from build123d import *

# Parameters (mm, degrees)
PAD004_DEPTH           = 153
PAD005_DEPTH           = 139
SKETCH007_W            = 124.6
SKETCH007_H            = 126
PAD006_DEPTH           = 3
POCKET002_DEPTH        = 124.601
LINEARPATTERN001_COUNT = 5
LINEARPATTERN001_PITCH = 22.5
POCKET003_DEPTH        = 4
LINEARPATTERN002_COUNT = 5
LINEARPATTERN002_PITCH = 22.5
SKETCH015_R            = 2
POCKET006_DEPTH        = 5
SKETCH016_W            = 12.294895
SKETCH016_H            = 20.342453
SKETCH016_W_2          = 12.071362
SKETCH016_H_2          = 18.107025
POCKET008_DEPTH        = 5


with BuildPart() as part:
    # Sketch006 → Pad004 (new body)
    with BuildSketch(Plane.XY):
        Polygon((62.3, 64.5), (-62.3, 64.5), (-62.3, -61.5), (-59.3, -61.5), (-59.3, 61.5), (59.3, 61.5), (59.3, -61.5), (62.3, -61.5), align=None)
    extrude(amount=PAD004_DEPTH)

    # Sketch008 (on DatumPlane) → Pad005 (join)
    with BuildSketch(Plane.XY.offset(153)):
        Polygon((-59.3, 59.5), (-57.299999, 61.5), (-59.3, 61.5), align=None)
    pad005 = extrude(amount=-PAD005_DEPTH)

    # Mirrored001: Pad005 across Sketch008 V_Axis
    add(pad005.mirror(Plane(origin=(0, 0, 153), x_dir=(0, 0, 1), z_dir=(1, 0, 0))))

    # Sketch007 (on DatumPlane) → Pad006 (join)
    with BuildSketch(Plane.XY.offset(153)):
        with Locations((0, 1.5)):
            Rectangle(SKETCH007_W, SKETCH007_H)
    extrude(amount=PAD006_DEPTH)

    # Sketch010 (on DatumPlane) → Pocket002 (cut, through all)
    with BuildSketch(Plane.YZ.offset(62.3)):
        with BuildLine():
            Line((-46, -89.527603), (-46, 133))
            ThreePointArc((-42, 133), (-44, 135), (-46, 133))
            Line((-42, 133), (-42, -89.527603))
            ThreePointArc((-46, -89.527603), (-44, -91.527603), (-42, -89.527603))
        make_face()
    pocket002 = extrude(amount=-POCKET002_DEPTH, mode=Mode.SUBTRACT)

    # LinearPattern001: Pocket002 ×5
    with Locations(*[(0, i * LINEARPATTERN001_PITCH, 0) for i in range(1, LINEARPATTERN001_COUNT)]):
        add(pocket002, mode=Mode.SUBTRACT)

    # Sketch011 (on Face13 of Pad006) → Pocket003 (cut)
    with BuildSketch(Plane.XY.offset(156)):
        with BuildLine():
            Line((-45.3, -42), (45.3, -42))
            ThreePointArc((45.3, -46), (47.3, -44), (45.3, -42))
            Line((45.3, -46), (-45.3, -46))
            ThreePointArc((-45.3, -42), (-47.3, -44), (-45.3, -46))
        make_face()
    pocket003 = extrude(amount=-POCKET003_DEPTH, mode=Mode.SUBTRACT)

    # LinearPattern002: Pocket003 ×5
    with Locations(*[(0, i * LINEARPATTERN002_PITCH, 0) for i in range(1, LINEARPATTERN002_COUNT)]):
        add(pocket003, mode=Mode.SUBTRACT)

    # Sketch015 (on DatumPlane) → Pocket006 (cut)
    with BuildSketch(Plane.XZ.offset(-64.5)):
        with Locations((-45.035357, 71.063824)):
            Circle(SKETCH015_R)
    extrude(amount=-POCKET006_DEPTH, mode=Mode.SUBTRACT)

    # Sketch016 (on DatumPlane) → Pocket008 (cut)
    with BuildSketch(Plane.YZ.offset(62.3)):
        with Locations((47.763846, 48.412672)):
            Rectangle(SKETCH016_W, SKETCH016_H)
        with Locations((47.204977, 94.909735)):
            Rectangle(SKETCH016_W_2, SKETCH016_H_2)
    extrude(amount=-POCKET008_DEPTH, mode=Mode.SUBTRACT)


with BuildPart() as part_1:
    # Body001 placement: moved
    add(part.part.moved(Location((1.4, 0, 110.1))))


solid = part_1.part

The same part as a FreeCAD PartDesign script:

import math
import FreeCAD as App
import Part
import Sketcher
from FreeCAD import Vector
Q = App.Units.Quantity

doc = App.newDocument("Part")
body = doc.addObject("PartDesign::Body", "Body")

# Sketch on XY plane
sketch1 = body.newObject("Sketcher::SketchObject", "Sketch")
sketch1.AttachmentSupport = (doc.getObject("XY_Plane"), [""])
sketch1.MapMode = "FlatFace"
sketch1.addGeometry([
    Part.LineSegment(Vector(62.3, 64.5, 0), Vector(-62.3, 64.5, 0)),  # 0
    Part.LineSegment(Vector(-62.3, 64.5, 0), Vector(-62.3, -61.5, 0)),  # 1
    Part.LineSegment(Vector(-62.3, -61.5, 0), Vector(-59.3, -61.5, 0)),  # 2
    Part.LineSegment(Vector(-59.3, -61.5, 0), Vector(-59.3, 61.5, 0)),  # 3
    Part.LineSegment(Vector(-59.3, 61.5, 0), Vector(59.3, 61.5, 0)),  # 4
    Part.LineSegment(Vector(59.3, 61.5, 0), Vector(59.3, -61.5, 0)),  # 5
    Part.LineSegment(Vector(59.3, -61.5, 0), Vector(62.3, -61.5, 0)),  # 6
    Part.LineSegment(Vector(62.3, -61.5, 0), Vector(62.3, 64.5, 0)),  # 7
], False)
sketch1.addConstraint([
    Sketcher.Constraint("Coincident", 0, 2, 1, 1),
    Sketcher.Constraint("Coincident", 1, 2, 2, 1),
    Sketcher.Constraint("Coincident", 2, 2, 3, 1),
    Sketcher.Constraint("Coincident", 3, 2, 4, 1),
    Sketcher.Constraint("Coincident", 4, 2, 5, 1),
    Sketcher.Constraint("Coincident", 5, 2, 6, 1),
    Sketcher.Constraint("Coincident", 6, 2, 7, 1),
    Sketcher.Constraint("Coincident", 7, 2, 0, 1),
    Sketcher.Constraint("Horizontal", 0),
    Sketcher.Constraint("Vertical", 1),
    Sketcher.Constraint("Horizontal", 2),
    Sketcher.Constraint("Vertical", 3),
    Sketcher.Constraint("Horizontal", 4),
    Sketcher.Constraint("Vertical", 5),
    Sketcher.Constraint("Horizontal", 6),
    Sketcher.Constraint("Vertical", 7),
    Sketcher.Constraint("Symmetric", 2, 2, 4, 2, -1, 1),
    Sketcher.Constraint("Symmetric", 1, 2, 6, 2, -2),
    Sketcher.Constraint("DistanceX", 2, 1, 2, 2, Q("3 mm")),
    Sketcher.Constraint("DistanceY", 1, 2, 1, 1, Q("126 mm")),
    Sketcher.Constraint("DistanceY", 3, 1, 3, 2, Q("123 mm")),
    Sketcher.Constraint("DistanceX", 0, 2, 0, 1, Q("124.6 mm")),
])
pad1 = body.newObject("PartDesign::Pad", "Pad")
pad1.Profile = sketch1
pad1.Length = 153

# Sketch on XY plane
sketch2 = body.newObject("Sketcher::SketchObject", "Sketch001")
sketch2.AttachmentSupport = (doc.getObject("XY_Plane"), [""])
sketch2.MapMode = "FlatFace"
sketch2.AttachmentOffset = App.Placement(Vector(0, 0, 153), App.Rotation())
sketch2.addGeometry([
    Part.LineSegment(Vector(-59.3, 59.5, 0), Vector(-57.3, 61.5, 0)),
    Part.LineSegment(Vector(-57.3, 61.5, 0), Vector(-59.3, 61.5, 0)),
    Part.LineSegment(Vector(-59.3, 61.5, 0), Vector(-59.3, 59.5, 0)),
], False)
sketch2.addConstraint([
    Sketcher.Constraint("Coincident", 0, 2, 1, 1),
    Sketcher.Constraint("Coincident", 1, 2, 2, 1),
    Sketcher.Constraint("Coincident", 2, 2, 0, 1),
    Sketcher.Constraint("Horizontal", 1),
    Sketcher.Constraint("Vertical", 2),
    Sketcher.Constraint("Equal", 1, 2),
    Sketcher.Constraint("DistanceX", 1, 2, 1, 1, Q("2.000001 mm")),
    Sketcher.Constraint("DistanceX", 0, 2, -1, 1, Q("57.299999 mm")),
    Sketcher.Constraint("DistanceY", -1, 1, 0, 2, Q("61.5 mm")),
])
pad2 = body.newObject("PartDesign::Pad", "Pad001")
pad2.Profile = sketch2
pad2.Length = 139
pad2.Reversed = True
doc.recompute()

mirrored = body.newObject("PartDesign::Mirrored", "Mirrored")
mirrored.Originals = [pad2]
mirrored.MirrorPlane = (doc.getObject("YZ_Plane"), [""])
body.Tip = mirrored

# Sketch on XY plane
sketch3 = body.newObject("Sketcher::SketchObject", "Sketch002")
sketch3.AttachmentSupport = (doc.getObject("XY_Plane"), [""])
sketch3.MapMode = "FlatFace"
sketch3.AttachmentOffset = App.Placement(Vector(0, 0, 153), App.Rotation())
sketch3.addGeometry([
    Part.LineSegment(Vector(-62, 64, 0), Vector(-62, -62, 0)),
    Part.LineSegment(Vector(-62, -62, 0), Vector(62, -62, 0)),
    Part.LineSegment(Vector(62, -62, 0), Vector(62, 64, 0)),
    Part.LineSegment(Vector(62, 64, 0), Vector(-62, 64, 0)),
], False)
sketch3.addConstraint([
    Sketcher.Constraint("Coincident", 0, 2, 1, 1),
    Sketcher.Constraint("Coincident", 1, 2, 2, 1),
    Sketcher.Constraint("Coincident", 2, 2, 3, 1),
    Sketcher.Constraint("Coincident", 3, 2, 0, 1),
    Sketcher.Constraint("Vertical", 0),
    Sketcher.Constraint("Horizontal", 1),
    Sketcher.Constraint("Vertical", 2),
    Sketcher.Constraint("Horizontal", 3),
    Sketcher.Constraint("DistanceY", 0, 2, 0, 1, Q("126 mm")),
    Sketcher.Constraint("DistanceX", 1, 1, 1, 2, Q("124.6 mm")),
    Sketcher.Constraint("DistanceX", 0, 2, -1, 1, Q("62.3 mm")),
    Sketcher.Constraint("DistanceY", 0, 2, -1, 1, Q("61.5 mm")),
])
pad3 = body.newObject("PartDesign::Pad", "Pad002")
pad3.Profile = sketch3
pad3.Length = 3

# Sketch on YZ plane
sketch4 = body.newObject("Sketcher::SketchObject", "Sketch003")
sketch4.AttachmentSupport = (doc.getObject("YZ_Plane"), [""])
sketch4.MapMode = "FlatFace"
sketch4.AttachmentOffset = App.Placement(Vector(0, 0, 62.3), App.Rotation())
sketch4.addGeometry([
    Part.LineSegment(Vector(-46, 133, 0), Vector(-46, -89.5, 0)),
    Part.ArcOfCircle(Part.Circle(Vector(-44, -89.5, 0), Vector(0, 0, 1), 2), math.radians(180), math.radians(360)),
    Part.LineSegment(Vector(-42, -89.5, 0), Vector(-42, 133, 0)),
    Part.ArcOfCircle(Part.Circle(Vector(-44, 133, 0), Vector(0, 0, 1), 2), math.radians(0), math.radians(180)),
], False)
sketch4.addConstraint([
    Sketcher.Constraint("Tangent", 0, 2, 1, 1),
    Sketcher.Constraint("Tangent", 1, 2, 2, 1),
    Sketcher.Constraint("Tangent", 2, 2, 3, 1),
    Sketcher.Constraint("Tangent", 3, 2, 0, 1),
    Sketcher.Constraint("Vertical", 0),
    Sketcher.Constraint("Vertical", 2),
    Sketcher.Constraint("Radius", 1, Q("2 mm")),
    Sketcher.Constraint("DistanceX", 1, 3, -1, 1, Q("44 mm")),
    Sketcher.Constraint("DistanceY", -1, 1, 3, 3, Q("133 mm")),
    Sketcher.Constraint("DistanceY", 0, 2, 0, 1, Q("222.527603 mm")),
])
pocket1 = body.newObject("PartDesign::Pocket", "Pocket")
pocket1.Profile = sketch4
pocket1.Type = "ThroughAll"
doc.recompute()

linearpattern = body.newObject("PartDesign::LinearPattern", "LinearPattern")
linearpattern.Originals = [pocket1]
linearpattern.Direction = (doc.getObject("Y_Axis"), [""])
linearpattern.Mode = "offset"
linearpattern.Offset = 22.5
linearpattern.Occurrences = 5
body.Tip = linearpattern

# Sketch on XY plane
sketch5 = body.newObject("Sketcher::SketchObject", "Sketch004")
sketch5.AttachmentSupport = (doc.getObject("XY_Plane"), [""])
sketch5.MapMode = "FlatFace"
sketch5.AttachmentOffset = App.Placement(Vector(0, 0, 156), App.Rotation())
sketch5.addGeometry([
    Part.LineSegment(Vector(45.3, -42, 0), Vector(-45.3, -42, 0)),
    Part.ArcOfCircle(Part.Circle(Vector(-45.3, -44, 0), Vector(0, 0, 1), 2), math.radians(90), math.radians(270)),
    Part.LineSegment(Vector(-45.3, -46, 0), Vector(45.3, -46, 0)),
    Part.ArcOfCircle(Part.Circle(Vector(45.3, -44, 0), Vector(0, 0, 1), 2), math.radians(-90), math.radians(90)),
], False)
sketch5.addConstraint([
    Sketcher.Constraint("Tangent", 0, 2, 1, 1),
    Sketcher.Constraint("Tangent", 1, 2, 2, 1),
    Sketcher.Constraint("Tangent", 2, 2, 3, 1),
    Sketcher.Constraint("Tangent", 3, 2, 0, 1),
    Sketcher.Constraint("Horizontal", 0),
    Sketcher.Constraint("Horizontal", 2),
    Sketcher.Constraint("Radius", 1, Q("2 mm")),
    Sketcher.Constraint("DistanceX", 0, 2, 0, 1, Q("90.6 mm")),
    Sketcher.Constraint("DistanceY", 1, 3, -1, 1, Q("44 mm")),
    Sketcher.Constraint("DistanceX", 1, 3, -1, 1, Q("45.3 mm")),
])
pocket2 = body.newObject("PartDesign::Pocket", "Pocket001")
pocket2.Profile = sketch5
pocket2.Length = 4
doc.recompute()

linearpattern2 = body.newObject("PartDesign::LinearPattern", "LinearPattern001")
linearpattern2.Originals = [pocket2]
linearpattern2.Direction = (doc.getObject("Y_Axis"), [""])
linearpattern2.Mode = "offset"
linearpattern2.Offset = 22.5
linearpattern2.Occurrences = 5
body.Tip = linearpattern2

# Sketch on XZ plane
sketch6 = body.newObject("Sketcher::SketchObject", "Sketch005")
sketch6.AttachmentSupport = (doc.getObject("XZ_Plane"), [""])
sketch6.MapMode = "FlatFace"
sketch6.AttachmentOffset = App.Placement(Vector(0, 0, -64.5), App.Rotation())
sketch6.addGeometry(Part.Circle(Vector(-45, 71.1, 0), Vector(0, 0, 1), 2), False)
sketch6.addConstraint([
    Sketcher.Constraint("Diameter", 0, Q("4 mm")),
    Sketcher.Constraint("DistanceX", 0, 3, -1, 1, Q("45.035357 mm")),
    Sketcher.Constraint("DistanceY", -1, 1, 0, 3, Q("71.063824 mm")),
])
pocket3 = body.newObject("PartDesign::Pocket", "Pocket002")
pocket3.Profile = sketch6
pocket3.Length = 5

# Sketch on YZ plane
sketch7 = body.newObject("Sketcher::SketchObject", "Sketch006")
sketch7.AttachmentSupport = (doc.getObject("YZ_Plane"), [""])
sketch7.MapMode = "FlatFace"
sketch7.AttachmentOffset = App.Placement(Vector(0, 0, 62.3), App.Rotation())
sketch7.addGeometry([
    Part.LineSegment(Vector(42, 59, 0), Vector(42, 38, 0)),  # 0
    Part.LineSegment(Vector(42, 38, 0), Vector(54, 38, 0)),  # 1
    Part.LineSegment(Vector(54, 38, 0), Vector(54, 59, 0)),  # 2
    Part.LineSegment(Vector(54, 59, 0), Vector(42, 59, 0)),  # 3
    Part.LineSegment(Vector(41, 104, 0), Vector(41, 86, 0)),  # 4
    Part.LineSegment(Vector(41, 86, 0), Vector(53, 86, 0)),  # 5
    Part.LineSegment(Vector(53, 86, 0), Vector(53, 104, 0)),  # 6
    Part.LineSegment(Vector(53, 104, 0), Vector(41, 104, 0)),  # 7
], False)
sketch7.addConstraint([
    Sketcher.Constraint("Coincident", 0, 2, 1, 1),
    Sketcher.Constraint("Coincident", 1, 2, 2, 1),
    Sketcher.Constraint("Coincident", 2, 2, 3, 1),
    Sketcher.Constraint("Coincident", 3, 2, 0, 1),
    Sketcher.Constraint("Coincident", 4, 2, 5, 1),
    Sketcher.Constraint("Coincident", 5, 2, 6, 1),
    Sketcher.Constraint("Coincident", 6, 2, 7, 1),
    Sketcher.Constraint("Coincident", 7, 2, 4, 1),
    Sketcher.Constraint("Vertical", 0),
    Sketcher.Constraint("Horizontal", 1),
    Sketcher.Constraint("Vertical", 2),
    Sketcher.Constraint("Horizontal", 3),
    Sketcher.Constraint("Vertical", 4),
    Sketcher.Constraint("Horizontal", 5),
    Sketcher.Constraint("Vertical", 6),
    Sketcher.Constraint("Horizontal", 7),
    Sketcher.Constraint("DistanceX", -1, 1, 0, 2, Q("41.616399 mm")),
    Sketcher.Constraint("DistanceY", -1, 1, 2, 2, Q("58.583898 mm")),
    Sketcher.Constraint("DistanceY", 1, 2, 6, 2, Q("65.721802 mm")),
    Sketcher.Constraint("DistanceX", 1, 1, 1, 2, Q("12.294895 mm")),
    Sketcher.Constraint("DistanceX", 5, 1, 5, 2, Q("12.071362 mm")),
    Sketcher.Constraint("DistanceY", 0, 2, 0, 1, Q("20.342453 mm")),
    Sketcher.Constraint("DistanceY", 4, 2, 4, 1, Q("18.107025 mm")),
    Sketcher.Constraint("DistanceX", -1, 1, 5, 2, Q("53.240658 mm")),
])
pocket4 = body.newObject("PartDesign::Pocket", "Pocket003")
pocket4.Profile = sketch7
pocket4.Length = 5
body2 = doc.addObject("PartDesign::Body", "Body001")
doc.recompute()

body.Placement = App.Placement(Vector(1.4, 0, 110.1), App.Rotation(Vector(0, 0, 1), 0))
boolean = body2.newObject("PartDesign::Boolean", "Boolean")
boolean.Type = "Fuse"
boolean.addObjects([body])

doc.recompute()
